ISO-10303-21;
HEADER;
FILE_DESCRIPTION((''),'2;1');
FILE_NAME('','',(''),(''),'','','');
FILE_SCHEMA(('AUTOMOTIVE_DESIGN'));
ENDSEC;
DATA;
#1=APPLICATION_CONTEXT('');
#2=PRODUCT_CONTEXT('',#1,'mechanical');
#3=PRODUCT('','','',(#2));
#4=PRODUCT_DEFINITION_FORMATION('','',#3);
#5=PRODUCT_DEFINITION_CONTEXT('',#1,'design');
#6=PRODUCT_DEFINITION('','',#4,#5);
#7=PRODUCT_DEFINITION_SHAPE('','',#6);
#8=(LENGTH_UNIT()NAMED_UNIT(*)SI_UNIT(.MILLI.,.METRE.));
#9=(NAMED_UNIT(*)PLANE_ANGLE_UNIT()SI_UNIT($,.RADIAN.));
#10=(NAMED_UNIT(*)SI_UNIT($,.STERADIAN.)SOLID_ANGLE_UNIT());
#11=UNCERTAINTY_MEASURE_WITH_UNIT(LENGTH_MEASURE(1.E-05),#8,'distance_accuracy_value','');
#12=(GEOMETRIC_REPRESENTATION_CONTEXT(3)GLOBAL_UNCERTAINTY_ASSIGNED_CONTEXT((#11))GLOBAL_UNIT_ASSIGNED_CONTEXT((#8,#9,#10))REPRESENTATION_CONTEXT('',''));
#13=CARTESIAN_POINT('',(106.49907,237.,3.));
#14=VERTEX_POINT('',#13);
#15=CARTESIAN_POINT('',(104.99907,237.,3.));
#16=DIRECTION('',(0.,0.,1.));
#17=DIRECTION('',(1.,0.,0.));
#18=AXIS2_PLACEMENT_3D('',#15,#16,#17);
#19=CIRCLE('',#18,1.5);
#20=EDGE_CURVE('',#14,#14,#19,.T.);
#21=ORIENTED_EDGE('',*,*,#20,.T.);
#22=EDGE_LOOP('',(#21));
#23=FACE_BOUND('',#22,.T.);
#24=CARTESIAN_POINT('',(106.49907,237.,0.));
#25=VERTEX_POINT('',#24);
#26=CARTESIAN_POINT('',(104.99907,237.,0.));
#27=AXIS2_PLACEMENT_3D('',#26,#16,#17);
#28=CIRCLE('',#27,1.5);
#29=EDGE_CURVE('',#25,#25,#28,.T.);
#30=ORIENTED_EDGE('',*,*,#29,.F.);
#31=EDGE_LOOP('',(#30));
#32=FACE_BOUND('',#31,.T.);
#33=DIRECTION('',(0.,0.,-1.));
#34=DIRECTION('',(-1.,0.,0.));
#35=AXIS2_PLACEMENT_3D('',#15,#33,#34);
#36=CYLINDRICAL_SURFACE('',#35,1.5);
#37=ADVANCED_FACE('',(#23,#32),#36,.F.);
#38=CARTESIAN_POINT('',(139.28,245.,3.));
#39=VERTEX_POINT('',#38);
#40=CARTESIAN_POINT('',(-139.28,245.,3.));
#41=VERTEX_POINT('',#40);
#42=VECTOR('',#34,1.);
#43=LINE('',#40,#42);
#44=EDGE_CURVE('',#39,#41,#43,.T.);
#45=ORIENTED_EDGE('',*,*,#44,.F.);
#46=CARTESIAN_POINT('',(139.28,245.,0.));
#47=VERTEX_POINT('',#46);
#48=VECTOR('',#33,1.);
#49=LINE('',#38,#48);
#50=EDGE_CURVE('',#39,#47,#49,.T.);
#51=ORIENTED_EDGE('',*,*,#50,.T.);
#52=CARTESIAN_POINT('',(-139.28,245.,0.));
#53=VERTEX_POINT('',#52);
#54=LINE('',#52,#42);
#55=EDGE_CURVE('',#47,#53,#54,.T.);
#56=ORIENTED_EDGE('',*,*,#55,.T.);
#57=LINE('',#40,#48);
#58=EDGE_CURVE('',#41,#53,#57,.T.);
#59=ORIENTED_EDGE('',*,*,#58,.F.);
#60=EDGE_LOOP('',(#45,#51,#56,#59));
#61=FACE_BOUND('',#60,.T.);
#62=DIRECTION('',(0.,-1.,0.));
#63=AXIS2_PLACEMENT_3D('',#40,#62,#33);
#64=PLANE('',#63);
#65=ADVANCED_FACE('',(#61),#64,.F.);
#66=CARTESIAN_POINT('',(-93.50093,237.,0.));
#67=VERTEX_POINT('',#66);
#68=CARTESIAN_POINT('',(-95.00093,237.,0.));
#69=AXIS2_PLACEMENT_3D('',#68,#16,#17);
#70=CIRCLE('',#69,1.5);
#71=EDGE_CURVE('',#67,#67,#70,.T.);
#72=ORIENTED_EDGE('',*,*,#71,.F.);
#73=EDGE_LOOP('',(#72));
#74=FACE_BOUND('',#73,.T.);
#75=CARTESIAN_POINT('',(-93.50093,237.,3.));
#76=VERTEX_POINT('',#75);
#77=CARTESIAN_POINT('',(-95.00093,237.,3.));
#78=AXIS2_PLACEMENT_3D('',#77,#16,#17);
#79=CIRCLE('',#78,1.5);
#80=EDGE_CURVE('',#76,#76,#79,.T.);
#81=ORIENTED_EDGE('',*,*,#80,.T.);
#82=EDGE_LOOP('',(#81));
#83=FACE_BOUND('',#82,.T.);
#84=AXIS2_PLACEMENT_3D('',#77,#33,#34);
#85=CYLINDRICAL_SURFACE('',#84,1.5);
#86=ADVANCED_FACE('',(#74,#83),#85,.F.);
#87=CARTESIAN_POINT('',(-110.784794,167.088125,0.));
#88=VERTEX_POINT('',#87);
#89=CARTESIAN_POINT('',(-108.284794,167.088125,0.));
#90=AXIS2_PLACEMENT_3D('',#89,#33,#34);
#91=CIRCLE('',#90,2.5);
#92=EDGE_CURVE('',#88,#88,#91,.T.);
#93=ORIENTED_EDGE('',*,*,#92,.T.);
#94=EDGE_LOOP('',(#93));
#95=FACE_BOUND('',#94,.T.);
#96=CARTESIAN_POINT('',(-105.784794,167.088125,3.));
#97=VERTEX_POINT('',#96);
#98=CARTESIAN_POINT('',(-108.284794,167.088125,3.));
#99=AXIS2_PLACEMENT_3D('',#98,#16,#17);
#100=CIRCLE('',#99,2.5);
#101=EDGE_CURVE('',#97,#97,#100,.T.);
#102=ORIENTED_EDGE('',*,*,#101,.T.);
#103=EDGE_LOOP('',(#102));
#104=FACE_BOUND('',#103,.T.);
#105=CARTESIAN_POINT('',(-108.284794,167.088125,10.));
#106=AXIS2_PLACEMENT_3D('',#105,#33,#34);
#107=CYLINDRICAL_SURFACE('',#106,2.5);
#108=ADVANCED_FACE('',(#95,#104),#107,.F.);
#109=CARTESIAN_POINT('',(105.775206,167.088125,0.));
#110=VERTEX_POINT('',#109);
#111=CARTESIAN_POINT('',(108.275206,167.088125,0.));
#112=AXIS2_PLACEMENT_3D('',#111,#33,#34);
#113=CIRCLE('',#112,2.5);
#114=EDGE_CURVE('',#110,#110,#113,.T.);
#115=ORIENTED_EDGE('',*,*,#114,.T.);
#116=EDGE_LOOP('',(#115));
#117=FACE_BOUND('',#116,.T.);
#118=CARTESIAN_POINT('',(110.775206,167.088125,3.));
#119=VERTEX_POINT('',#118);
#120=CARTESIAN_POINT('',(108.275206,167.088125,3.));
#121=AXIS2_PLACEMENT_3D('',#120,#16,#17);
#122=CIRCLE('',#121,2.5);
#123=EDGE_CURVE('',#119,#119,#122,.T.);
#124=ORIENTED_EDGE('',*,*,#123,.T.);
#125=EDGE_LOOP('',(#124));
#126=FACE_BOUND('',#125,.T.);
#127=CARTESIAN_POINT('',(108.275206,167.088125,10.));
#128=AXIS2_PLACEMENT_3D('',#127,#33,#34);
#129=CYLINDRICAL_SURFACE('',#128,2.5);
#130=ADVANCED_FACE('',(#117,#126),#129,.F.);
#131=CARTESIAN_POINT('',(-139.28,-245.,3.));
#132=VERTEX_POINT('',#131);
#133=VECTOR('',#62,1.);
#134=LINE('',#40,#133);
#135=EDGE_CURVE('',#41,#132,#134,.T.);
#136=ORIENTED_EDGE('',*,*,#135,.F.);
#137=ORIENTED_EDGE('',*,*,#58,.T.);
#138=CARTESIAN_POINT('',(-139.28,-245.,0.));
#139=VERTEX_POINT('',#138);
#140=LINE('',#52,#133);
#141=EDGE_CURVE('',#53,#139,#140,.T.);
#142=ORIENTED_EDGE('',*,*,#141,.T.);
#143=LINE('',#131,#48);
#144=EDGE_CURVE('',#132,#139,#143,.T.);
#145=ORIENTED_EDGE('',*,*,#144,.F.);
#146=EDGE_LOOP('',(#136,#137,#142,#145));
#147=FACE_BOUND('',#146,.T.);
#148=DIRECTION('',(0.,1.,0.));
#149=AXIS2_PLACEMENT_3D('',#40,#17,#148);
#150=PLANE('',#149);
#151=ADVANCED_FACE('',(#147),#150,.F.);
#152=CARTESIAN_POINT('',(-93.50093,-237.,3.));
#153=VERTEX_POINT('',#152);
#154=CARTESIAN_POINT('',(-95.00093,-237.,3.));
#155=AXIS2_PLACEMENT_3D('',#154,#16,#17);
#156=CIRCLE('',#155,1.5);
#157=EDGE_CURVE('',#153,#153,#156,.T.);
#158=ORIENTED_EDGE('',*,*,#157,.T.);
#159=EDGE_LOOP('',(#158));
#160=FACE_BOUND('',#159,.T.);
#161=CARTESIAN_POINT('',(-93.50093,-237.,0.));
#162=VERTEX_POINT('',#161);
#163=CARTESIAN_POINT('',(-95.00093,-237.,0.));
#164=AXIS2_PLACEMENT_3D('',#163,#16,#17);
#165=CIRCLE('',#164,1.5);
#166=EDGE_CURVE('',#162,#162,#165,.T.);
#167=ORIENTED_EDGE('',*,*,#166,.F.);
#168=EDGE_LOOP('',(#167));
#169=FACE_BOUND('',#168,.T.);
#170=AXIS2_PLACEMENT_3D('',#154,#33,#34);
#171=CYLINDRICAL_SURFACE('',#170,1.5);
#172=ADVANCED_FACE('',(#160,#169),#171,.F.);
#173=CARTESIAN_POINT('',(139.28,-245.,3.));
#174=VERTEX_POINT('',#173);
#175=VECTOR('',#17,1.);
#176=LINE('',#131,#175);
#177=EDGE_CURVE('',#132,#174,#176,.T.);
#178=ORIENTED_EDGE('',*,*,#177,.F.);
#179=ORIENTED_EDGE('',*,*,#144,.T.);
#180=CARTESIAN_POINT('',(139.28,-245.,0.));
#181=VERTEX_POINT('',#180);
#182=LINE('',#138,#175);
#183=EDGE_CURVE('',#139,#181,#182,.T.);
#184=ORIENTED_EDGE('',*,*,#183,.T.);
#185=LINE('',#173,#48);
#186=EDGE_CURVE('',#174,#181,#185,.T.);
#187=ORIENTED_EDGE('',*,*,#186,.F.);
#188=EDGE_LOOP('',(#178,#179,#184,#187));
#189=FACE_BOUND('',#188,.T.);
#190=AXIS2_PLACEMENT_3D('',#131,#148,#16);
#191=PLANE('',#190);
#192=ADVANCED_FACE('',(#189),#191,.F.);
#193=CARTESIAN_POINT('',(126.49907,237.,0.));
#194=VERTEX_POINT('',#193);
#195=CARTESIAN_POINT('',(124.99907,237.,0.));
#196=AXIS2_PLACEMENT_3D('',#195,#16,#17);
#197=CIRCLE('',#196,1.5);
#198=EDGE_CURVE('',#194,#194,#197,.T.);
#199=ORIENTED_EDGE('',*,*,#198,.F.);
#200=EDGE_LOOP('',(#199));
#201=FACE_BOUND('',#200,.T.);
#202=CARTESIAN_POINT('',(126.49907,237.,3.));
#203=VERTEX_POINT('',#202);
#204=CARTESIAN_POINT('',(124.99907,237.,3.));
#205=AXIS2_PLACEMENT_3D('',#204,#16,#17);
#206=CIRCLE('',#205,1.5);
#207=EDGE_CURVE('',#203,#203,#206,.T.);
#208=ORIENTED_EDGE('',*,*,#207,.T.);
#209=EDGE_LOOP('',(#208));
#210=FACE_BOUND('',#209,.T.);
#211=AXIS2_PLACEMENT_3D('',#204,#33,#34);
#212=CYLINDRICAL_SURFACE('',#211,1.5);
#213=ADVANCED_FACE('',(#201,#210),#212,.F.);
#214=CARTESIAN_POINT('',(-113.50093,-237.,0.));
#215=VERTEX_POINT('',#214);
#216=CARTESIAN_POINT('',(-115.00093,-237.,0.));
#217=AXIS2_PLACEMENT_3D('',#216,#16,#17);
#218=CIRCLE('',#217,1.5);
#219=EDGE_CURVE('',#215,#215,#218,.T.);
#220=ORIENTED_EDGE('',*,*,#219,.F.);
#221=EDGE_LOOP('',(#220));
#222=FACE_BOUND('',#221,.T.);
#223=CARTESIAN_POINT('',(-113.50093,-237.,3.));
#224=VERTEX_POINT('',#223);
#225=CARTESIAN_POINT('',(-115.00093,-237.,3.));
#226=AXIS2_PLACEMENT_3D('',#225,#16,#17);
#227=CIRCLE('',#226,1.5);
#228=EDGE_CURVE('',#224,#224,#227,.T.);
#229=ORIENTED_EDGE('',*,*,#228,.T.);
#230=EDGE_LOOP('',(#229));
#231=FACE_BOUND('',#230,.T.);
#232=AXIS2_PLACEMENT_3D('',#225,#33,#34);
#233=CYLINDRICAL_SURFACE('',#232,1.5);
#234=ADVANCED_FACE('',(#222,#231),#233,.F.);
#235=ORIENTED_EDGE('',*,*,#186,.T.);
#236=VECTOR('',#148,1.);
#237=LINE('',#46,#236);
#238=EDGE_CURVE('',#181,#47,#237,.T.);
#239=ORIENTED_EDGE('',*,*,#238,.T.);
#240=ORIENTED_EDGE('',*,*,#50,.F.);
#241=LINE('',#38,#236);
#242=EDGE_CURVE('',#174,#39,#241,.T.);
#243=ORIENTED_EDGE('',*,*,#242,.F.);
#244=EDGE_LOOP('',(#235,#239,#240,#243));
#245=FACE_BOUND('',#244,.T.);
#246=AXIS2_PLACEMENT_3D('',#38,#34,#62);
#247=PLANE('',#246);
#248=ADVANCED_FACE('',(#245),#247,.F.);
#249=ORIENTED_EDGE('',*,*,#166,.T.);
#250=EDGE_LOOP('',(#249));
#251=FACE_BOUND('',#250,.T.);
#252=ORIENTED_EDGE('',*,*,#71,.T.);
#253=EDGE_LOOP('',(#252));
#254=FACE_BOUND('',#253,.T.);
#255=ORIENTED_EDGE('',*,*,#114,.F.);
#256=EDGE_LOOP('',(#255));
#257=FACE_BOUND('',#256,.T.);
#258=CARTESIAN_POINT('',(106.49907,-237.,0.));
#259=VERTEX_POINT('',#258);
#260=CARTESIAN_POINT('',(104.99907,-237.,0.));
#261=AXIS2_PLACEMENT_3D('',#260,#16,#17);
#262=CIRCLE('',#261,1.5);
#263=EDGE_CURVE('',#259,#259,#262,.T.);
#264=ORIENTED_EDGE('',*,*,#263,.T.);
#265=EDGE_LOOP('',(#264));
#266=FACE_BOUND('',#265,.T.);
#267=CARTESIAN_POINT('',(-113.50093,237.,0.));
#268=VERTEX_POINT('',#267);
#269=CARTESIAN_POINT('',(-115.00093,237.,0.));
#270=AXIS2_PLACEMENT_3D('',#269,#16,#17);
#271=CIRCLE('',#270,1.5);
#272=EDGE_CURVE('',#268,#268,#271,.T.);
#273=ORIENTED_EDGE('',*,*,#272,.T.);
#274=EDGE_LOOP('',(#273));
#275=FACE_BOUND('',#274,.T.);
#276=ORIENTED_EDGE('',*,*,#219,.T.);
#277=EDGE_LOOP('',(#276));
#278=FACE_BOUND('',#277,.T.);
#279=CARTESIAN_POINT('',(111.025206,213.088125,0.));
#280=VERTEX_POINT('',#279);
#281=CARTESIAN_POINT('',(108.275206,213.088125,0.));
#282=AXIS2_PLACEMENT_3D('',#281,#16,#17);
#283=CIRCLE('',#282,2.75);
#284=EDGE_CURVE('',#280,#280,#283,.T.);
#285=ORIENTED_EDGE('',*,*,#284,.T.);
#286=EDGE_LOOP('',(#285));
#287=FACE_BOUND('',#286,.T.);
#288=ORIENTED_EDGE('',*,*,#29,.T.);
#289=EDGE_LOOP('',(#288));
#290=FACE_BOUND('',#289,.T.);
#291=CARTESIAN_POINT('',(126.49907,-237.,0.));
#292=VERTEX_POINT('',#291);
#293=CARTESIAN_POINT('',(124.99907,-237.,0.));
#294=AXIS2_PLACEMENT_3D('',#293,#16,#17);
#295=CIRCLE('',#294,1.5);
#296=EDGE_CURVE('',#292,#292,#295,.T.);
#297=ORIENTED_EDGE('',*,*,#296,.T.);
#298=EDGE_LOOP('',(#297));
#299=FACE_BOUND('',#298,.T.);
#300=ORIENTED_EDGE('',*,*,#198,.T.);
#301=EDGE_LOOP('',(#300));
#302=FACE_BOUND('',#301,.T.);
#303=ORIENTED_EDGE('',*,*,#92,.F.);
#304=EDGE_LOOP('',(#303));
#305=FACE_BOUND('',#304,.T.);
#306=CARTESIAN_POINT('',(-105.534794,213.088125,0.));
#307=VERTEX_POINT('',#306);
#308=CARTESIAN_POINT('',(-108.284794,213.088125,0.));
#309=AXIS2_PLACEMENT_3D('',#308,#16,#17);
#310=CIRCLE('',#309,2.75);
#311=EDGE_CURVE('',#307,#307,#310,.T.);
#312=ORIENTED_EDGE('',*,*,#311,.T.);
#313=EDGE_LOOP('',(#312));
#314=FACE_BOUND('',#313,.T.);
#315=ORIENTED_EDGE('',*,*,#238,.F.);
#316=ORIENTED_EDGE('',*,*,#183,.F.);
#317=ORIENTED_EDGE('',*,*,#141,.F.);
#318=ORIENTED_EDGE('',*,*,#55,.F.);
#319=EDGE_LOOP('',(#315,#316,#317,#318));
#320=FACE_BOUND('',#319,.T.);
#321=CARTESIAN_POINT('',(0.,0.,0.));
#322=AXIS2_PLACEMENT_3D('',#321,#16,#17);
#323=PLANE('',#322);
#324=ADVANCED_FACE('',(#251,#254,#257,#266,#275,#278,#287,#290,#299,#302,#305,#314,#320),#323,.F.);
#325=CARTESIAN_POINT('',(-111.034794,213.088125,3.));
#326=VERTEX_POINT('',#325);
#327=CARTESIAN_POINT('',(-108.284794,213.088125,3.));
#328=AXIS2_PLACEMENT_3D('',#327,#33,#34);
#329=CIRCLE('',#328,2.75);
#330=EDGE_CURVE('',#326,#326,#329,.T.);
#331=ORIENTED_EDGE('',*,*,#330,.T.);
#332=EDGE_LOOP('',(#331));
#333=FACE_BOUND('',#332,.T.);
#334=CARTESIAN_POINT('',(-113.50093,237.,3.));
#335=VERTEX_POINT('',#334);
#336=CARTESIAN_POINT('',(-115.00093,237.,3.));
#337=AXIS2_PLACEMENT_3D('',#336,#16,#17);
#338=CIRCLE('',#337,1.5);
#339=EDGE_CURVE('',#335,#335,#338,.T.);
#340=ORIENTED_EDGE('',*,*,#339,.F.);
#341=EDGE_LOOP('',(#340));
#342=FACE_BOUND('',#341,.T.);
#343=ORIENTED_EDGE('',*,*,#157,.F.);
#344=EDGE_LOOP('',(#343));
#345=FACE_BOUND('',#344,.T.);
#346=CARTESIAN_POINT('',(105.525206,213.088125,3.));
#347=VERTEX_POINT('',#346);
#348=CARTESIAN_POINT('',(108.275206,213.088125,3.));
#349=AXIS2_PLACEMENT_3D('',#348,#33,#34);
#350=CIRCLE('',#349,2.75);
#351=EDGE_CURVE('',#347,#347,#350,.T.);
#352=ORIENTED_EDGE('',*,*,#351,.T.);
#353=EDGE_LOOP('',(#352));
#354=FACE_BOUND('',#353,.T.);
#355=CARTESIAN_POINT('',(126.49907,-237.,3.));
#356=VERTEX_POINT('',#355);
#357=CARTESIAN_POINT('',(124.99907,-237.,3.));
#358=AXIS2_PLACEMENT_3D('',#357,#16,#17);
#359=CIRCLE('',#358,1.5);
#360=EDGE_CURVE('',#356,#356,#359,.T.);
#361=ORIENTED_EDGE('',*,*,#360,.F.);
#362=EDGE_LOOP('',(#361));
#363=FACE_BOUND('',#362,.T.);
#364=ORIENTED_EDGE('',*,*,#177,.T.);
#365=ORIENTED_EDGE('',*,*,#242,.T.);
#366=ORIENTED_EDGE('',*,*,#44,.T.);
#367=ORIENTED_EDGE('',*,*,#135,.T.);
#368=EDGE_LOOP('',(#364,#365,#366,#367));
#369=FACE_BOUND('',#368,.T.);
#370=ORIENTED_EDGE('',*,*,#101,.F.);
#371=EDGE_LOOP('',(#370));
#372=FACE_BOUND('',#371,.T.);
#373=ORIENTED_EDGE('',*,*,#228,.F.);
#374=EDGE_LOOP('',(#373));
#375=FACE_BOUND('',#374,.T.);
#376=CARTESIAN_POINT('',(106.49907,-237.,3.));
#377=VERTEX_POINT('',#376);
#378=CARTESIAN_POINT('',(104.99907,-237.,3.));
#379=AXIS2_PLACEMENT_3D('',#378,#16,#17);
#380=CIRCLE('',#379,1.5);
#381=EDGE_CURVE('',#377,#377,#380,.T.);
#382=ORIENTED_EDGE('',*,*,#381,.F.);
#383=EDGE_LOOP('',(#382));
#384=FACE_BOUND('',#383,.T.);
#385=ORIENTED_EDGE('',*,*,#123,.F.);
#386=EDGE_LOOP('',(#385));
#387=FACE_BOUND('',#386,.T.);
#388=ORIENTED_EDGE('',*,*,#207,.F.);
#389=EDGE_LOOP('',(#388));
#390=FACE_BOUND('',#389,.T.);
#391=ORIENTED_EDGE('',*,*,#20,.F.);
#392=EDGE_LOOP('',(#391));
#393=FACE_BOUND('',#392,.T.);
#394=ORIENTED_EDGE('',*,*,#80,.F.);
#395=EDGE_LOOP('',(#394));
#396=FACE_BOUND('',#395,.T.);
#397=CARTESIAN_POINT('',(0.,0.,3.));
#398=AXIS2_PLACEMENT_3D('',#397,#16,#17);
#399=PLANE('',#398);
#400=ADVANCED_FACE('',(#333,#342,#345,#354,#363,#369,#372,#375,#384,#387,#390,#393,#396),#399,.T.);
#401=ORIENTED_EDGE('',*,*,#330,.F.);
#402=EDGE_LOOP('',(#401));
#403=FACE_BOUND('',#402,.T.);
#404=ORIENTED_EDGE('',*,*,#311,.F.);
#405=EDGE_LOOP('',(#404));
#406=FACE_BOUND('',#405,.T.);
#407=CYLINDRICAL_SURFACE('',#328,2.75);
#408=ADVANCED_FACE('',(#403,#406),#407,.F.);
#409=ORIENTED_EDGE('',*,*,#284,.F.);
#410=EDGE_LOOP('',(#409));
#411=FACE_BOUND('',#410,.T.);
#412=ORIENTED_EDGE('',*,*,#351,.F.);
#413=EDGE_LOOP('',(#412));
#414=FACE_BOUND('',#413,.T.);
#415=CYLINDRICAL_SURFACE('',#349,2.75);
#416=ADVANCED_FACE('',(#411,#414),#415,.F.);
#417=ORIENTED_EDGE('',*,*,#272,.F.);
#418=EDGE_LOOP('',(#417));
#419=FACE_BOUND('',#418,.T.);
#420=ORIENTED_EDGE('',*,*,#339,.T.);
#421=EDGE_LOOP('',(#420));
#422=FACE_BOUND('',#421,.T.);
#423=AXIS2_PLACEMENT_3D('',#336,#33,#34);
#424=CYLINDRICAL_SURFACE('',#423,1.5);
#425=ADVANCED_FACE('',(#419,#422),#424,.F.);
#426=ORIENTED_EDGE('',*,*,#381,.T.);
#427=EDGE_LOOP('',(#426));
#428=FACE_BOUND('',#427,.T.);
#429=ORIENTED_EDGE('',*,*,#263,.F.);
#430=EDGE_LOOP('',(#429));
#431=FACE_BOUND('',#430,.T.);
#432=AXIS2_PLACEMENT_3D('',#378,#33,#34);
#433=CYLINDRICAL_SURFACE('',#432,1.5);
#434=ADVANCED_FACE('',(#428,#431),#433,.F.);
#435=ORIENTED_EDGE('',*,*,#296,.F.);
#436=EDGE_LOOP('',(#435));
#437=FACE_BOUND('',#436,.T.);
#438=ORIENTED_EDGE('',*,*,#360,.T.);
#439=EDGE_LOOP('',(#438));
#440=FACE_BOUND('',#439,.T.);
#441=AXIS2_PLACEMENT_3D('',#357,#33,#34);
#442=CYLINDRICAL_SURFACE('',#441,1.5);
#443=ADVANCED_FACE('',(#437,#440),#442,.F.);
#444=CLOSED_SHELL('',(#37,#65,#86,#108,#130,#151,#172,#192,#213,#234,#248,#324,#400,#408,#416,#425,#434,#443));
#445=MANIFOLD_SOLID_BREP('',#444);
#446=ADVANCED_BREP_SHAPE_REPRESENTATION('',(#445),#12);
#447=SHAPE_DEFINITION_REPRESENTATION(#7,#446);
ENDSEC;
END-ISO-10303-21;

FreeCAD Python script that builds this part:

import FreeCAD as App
import Part
import Sketcher
from FreeCAD import Vector
Q = App.Units.Quantity

doc = App.newDocument("Part")
params = doc.addObject("Spreadsheet::Sheet", "Params")
for row, (alias, value) in enumerate([
    ("sketch1_diameter", "3 mm"),
    ("sketch1_height", "490 mm"),
    ("sketch1_width", "278.56 mm"),
    ("pad1_length", "3 mm"),
    ("sketch2_diameter", "5 mm"),
    ("pocket1_length", "10 mm"),
    ("sketch3_diameter", "5.5 mm"),
], start=1):
    params.set(f"A{row}", alias)
    params.set(f"B{row}", "=" + value)
    params.setAlias(f"B{row}", alias)

body = doc.addObject("PartDesign::Body", "Body")

# Sketch on XY plane
sketch1 = doc.addObject("Sketcher::SketchObject", "Sketch")
body.addObject(sketch1)
sketch1.AttachmentSupport = (doc.XY_Plane, [""])
sketch1.MapMode = "FlatFace"
sketch1.addGeometry([
    Part.LineSegment(Vector(-139.28, 245, 0), Vector(-139.28, -245, 0)),  # 0
    Part.LineSegment(Vector(-139.28, -245, 0), Vector(139.28, -245, 0)),  # 1
    Part.LineSegment(Vector(139.28, -245, 0), Vector(139.28, 245, 0)),  # 2
    Part.LineSegment(Vector(139.28, 245, 0), Vector(-139.28, 245, 0)),  # 3
    Part.Circle(Vector(-115.00093, -237, 0), Vector(0, 0, 1), 1.5),  # 4
    Part.Circle(Vector(-95.00093, -237, 0), Vector(0, 0, 1), 1.5),  # 5
    Part.Circle(Vector(104.99907, -237, 0), Vector(0, 0, 1), 1.5),  # 6
    Part.Circle(Vector(124.99907, -237, 0), Vector(0, 0, 1), 1.5),  # 7
    Part.Circle(Vector(-115.00093, 237, 0), Vector(0, 0, 1), 1.5),  # 8
    Part.Circle(Vector(-95.00093, 237, 0), Vector(0, 0, 1), 1.5),  # 9
    Part.Circle(Vector(104.99907, 237, 0), Vector(0, 0, 1), 1.5),  # 10
    Part.Circle(Vector(124.99907, 237, 0), Vector(0, 0, 1), 1.5),  # 11
], False)
sketch1.addConstraint([
    Sketcher.Constraint("Coincident", 0, 2, 1, 1),
    Sketcher.Constraint("Coincident", 1, 2, 2, 1),
    Sketcher.Constraint("Coincident", 2, 2, 3, 1),
    Sketcher.Constraint("Coincident", 3, 2, 0, 1),
    Sketcher.Constraint("Vertical", 0),
    Sketcher.Constraint("Horizontal", 1),
    Sketcher.Constraint("Vertical", 2),
    Sketcher.Constraint("Horizontal", 3),
    Sketcher.Constraint("Equal", 4, 5),
    Sketcher.Constraint("Equal", 5, 6),
    Sketcher.Constraint("Equal", 6, 7),
    Sketcher.Constraint("Equal", 7, 8),
    Sketcher.Constraint("Equal", 8, 9),
    Sketcher.Constraint("Equal", 9, 10),
    Sketcher.Constraint("Equal", 10, 11),
    Sketcher.Constraint("Symmetric", 0, 2, 2, 2, -1, 1),
    Sketcher.Constraint("Symmetric", 4, 3, 8, 3, -1),
    Sketcher.Constraint("Symmetric", 5, 3, 9, 3, -1),
    Sketcher.Constraint("Symmetric", 6, 3, 10, 3, -1),
    Sketcher.Constraint("Symmetric", 7, 3, 11, 3, -1),
    Sketcher.Constraint("Horizontal", 4, 3, 5, 3),
    Sketcher.Constraint("Horizontal", 5, 3, 6, 3),
    Sketcher.Constraint("Horizontal", 6, 3, 7, 3),
    Sketcher.Constraint("Diameter", 4, Q("3 mm")),
    Sketcher.Constraint("DistanceY", 0, 2, 0, 1, Q("490 mm")),
    Sketcher.Constraint("DistanceY", 4, 3, -1, 1, Q("237 mm")),
    Sketcher.Constraint("DistanceX", 4, 3, 5, 3, Q("20 mm")),
    Sketcher.Constraint("DistanceX", 5, 3, 6, 3, Q("200 mm")),
    Sketcher.Constraint("DistanceX", 6, 3, 7, 3, Q("20 mm")),
    Sketcher.Constraint("DistanceX", 1, 1, 1, 2, Q("278.56 mm")),
    Sketcher.Constraint("DistanceX", 4, 3, -1, 1, Q("115.00093 mm")),
])
sketch1.setExpression("Constraints[23]", "Params.sketch1_diameter")
sketch1.setExpression("Constraints[24]", "Params.sketch1_height")
sketch1.setExpression("Constraints[29]", "Params.sketch1_width")
pad1 = doc.addObject("PartDesign::Pad", "Pad")
body.addObject(pad1)
pad1.Profile = sketch1
pad1.setExpression("Length", "Params.pad1_length")

# Sketch on XY plane
sketch2 = doc.addObject("Sketcher::SketchObject", "Sketch001")
body.addObject(sketch2)
sketch2.AttachmentSupport = (doc.XY_Plane, [""])
sketch2.MapMode = "FlatFace"
sketch2.addGeometry([
    Part.Circle(Vector(108.275206, 167.088125, 0), Vector(0, 0, 1), 2.5),
    Part.Circle(Vector(-108.284794, 167.088125, 0), Vector(0, 0, 1), 2.5),
], False)
sketch2.addConstraint([
    Sketcher.Constraint("Equal", 0, 1),
    Sketcher.Constraint("Horizontal", 0, 3, 1, 3),
    Sketcher.Constraint("Diameter", 0, Q("5 mm")),
    Sketcher.Constraint("DistanceX", 1, 3, 0, 3, Q("216.56 mm")),
    Sketcher.Constraint("DistanceX", -1, 1, 0, 3, Q("108.275206 mm")),
    Sketcher.Constraint("DistanceY", -1, 1, 0, 3, Q("167.088125 mm")),
])
sketch2.setExpression("Constraints[2]", "Params.sketch2_diameter")
pocket1 = doc.addObject("PartDesign::Pocket", "Pocket")
body.addObject(pocket1)
pocket1.Profile = sketch2
pocket1.setExpression("Length", "Params.pocket1_length")
pocket1.Reversed = True

# Sketch on XY plane
sketch3 = doc.addObject("Sketcher::SketchObject", "Sketch002")
body.addObject(sketch3)
sketch3.AttachmentSupport = (doc.XY_Plane, [""])
sketch3.MapMode = "FlatFace"
sketch3.addGeometry([
    Part.Circle(Vector(-108.284794, 213.088125, 0), Vector(0, 0, 1), 2.75),
    Part.Circle(Vector(108.275206, 213.088125, 0), Vector(0, 0, 1), 2.75),
], False)
sketch3.addConstraint([
    Sketcher.Constraint("Equal", 0, 1),
    Sketcher.Constraint("Horizontal", 0, 3, 1, 3),
    Sketcher.Constraint("Diameter", 0, Q("5.5 mm")),
    Sketcher.Constraint("DistanceX", 0, 3, 1, 3, Q("216.56 mm")),
    Sketcher.Constraint("DistanceX", 0, 3, -1, 1, Q("108.284794 mm")),
    Sketcher.Constraint("DistanceY", -1, 1, 0, 3, Q("213.088125 mm")),
])
sketch3.setExpression("Constraints[2]", "Params.sketch3_diameter")
pocket2 = doc.addObject("PartDesign::Pocket", "Pocket001")
body.addObject(pocket2)
pocket2.Profile = sketch3
pocket2.Type = "ThroughAll"
pocket2.Midplane = True

doc.recompute()
